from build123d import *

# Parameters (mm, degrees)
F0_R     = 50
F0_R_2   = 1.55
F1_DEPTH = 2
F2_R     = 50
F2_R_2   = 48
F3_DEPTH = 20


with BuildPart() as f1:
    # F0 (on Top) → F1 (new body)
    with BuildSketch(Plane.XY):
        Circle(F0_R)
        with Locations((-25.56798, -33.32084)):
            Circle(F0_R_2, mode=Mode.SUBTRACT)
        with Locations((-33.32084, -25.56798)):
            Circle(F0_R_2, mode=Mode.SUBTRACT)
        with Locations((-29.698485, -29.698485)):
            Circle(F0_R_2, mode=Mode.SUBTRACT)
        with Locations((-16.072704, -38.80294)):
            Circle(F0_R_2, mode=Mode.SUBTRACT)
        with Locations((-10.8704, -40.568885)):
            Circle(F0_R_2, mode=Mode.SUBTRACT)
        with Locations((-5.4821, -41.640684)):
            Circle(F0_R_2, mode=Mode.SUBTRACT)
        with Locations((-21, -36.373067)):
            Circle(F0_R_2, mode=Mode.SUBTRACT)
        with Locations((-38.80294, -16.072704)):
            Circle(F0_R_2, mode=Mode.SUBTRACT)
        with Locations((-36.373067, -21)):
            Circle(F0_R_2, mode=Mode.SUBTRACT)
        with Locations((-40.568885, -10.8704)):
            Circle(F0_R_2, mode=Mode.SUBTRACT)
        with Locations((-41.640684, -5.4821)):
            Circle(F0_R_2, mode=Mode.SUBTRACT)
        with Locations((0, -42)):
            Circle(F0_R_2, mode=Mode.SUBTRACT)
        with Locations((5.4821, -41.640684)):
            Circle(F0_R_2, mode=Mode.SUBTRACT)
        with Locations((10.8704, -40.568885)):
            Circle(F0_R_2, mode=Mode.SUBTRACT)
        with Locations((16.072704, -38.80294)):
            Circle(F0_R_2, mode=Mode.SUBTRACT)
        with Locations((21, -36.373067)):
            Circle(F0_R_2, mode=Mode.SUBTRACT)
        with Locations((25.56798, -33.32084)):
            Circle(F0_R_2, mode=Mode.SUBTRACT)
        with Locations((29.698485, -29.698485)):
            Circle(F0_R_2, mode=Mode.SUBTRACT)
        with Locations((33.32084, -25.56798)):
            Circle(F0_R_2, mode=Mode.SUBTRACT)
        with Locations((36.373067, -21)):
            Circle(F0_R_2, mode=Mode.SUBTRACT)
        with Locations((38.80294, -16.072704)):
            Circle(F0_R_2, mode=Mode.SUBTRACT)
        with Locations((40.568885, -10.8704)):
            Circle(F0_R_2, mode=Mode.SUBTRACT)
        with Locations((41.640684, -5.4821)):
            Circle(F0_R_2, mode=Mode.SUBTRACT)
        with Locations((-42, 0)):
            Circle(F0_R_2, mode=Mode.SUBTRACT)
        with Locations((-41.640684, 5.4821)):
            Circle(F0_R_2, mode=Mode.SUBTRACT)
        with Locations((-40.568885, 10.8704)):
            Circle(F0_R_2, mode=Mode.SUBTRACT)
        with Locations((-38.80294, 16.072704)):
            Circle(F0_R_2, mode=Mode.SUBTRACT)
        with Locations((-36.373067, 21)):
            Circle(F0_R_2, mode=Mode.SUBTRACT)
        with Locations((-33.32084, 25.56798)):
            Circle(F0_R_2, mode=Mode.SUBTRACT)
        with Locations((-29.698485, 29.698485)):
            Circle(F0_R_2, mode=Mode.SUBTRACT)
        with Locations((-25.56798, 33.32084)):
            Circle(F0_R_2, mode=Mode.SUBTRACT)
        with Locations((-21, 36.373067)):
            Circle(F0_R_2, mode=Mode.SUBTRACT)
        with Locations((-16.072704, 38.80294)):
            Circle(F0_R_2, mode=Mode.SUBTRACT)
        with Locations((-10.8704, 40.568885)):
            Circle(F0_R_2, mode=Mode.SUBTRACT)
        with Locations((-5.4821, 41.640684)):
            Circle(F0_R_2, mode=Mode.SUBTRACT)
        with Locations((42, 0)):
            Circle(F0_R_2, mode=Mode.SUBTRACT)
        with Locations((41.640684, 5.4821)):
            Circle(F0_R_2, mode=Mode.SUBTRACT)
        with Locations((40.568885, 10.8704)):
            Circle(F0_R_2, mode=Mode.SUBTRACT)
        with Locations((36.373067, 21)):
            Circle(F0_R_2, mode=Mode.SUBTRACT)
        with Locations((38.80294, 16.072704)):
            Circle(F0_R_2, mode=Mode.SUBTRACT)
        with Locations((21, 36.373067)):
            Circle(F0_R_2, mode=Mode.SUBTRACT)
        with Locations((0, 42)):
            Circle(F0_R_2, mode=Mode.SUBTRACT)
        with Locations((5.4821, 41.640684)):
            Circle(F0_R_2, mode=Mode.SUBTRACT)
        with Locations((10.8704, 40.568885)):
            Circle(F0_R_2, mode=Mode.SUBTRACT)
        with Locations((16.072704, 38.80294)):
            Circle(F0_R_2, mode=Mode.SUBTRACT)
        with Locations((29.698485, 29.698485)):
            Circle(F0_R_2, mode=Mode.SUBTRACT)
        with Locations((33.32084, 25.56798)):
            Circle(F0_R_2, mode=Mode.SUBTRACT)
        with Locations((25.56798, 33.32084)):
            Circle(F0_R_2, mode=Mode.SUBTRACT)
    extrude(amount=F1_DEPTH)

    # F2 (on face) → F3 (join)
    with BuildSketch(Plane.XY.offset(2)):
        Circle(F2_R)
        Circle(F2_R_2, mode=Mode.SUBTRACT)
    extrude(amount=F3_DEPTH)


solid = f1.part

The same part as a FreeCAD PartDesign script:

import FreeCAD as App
import Part
import Sketcher
from FreeCAD import Vector
Q = App.Units.Quantity

doc = App.newDocument("Part")
params = doc.addObject("Spreadsheet::Sheet", "Params")
for row, (alias, value) in enumerate([
    ("sketch1_diameter", "100 mm"),
    ("sketch1_diameter2", "3.1 mm"),
    ("pad1_length", "2 mm"),
    ("sketch2_diameter", "100 mm"),
    ("sketch2_diameter2", "96 mm"),
    ("pad2_length", "20 mm"),
], start=1):
    params.set(f"A{row}", alias)
    params.set(f"B{row}", "=" + value)
    params.setAlias(f"B{row}", alias)

body = doc.addObject("PartDesign::Body", "Body")

sketch1 = body.newObject("Sketcher::SketchObject", "Sketch")
sketch1.AttachmentSupport = (doc.getObject("XY_Plane"), [""])
sketch1.MapMode = "FlatFace"
sketch1.addGeometry([
    Part.Circle(Vector(0, 0, 0), Vector(0, 0, 1), 50),
    Part.Circle(Vector(-25.56798, -33.32084, 0), Vector(0, 0, 1), 1.55),
    Part.Circle(Vector(-33.32084, -25.56798, 0), Vector(0, 0, 1), 1.55),
    Part.Circle(Vector(-29.698485, -29.698485, 0), Vector(0, 0, 1), 1.55),
    Part.Circle(Vector(-16.072704, -38.80294, 0), Vector(0, 0, 1), 1.55),
    Part.Circle(Vector(-21, -36.373067, 0), Vector(0, 0, 1), 1.55),
    Part.Circle(Vector(-5.4821, -41.640684, 0), Vector(0, 0, 1), 1.55),
    Part.Circle(Vector(-10.8704, -40.568885, 0), Vector(0, 0, 1), 1.55),
    Part.Circle(Vector(-36.373067, -21, 0), Vector(0, 0, 1), 1.55),
    Part.Circle(Vector(-38.80294, -16.072704, 0), Vector(0, 0, 1), 1.55),
    Part.Circle(Vector(-40.568885, -10.8704, 0), Vector(0, 0, 1), 1.55),
    Part.Circle(Vector(-41.640684, -5.4821, 0), Vector(0, 0, 1), 1.55),
    Part.Circle(Vector(0, -42, 0), Vector(0, 0, 1), 1.55),
    Part.Circle(Vector(5.4821, -41.640684, 0), Vector(0, 0, 1), 1.55),
    Part.Circle(Vector(10.8704, -40.568885, 0), Vector(0, 0, 1), 1.55),
    Part.Circle(Vector(16.072704, -38.80294, 0), Vector(0, 0, 1), 1.55),
    Part.Circle(Vector(21, -36.373067, 0), Vector(0, 0, 1), 1.55),
    Part.Circle(Vector(25.56798, -33.32084, 0), Vector(0, 0, 1), 1.55),
    Part.Circle(Vector(29.698485, -29.698485, 0), Vector(0, 0, 1), 1.55),
    Part.Circle(Vector(33.32084, -25.56798, 0), Vector(0, 0, 1), 1.55),
    Part.Circle(Vector(36.373067, -21, 0), Vector(0, 0, 1), 1.55),
    Part.Circle(Vector(38.80294, -16.072704, 0), Vector(0, 0, 1), 1.55),
    Part.Circle(Vector(40.568885, -10.8704, 0), Vector(0, 0, 1), 1.55),
    Part.Circle(Vector(41.640684, -5.4821, 0), Vector(0, 0, 1), 1.55),
    Part.Circle(Vector(-42, 0, 0), Vector(0, 0, 1), 1.55),
    Part.Circle(Vector(-41.640684, 5.4821, 0), Vector(0, 0, 1), 1.55),
    Part.Circle(Vector(-40.568885, 10.8704, 0), Vector(0, 0, 1), 1.55),
    Part.Circle(Vector(-38.80294, 16.072704, 0), Vector(0, 0, 1), 1.55),
    Part.Circle(Vector(-36.373067, 21, 0), Vector(0, 0, 1), 1.55),
    Part.Circle(Vector(-33.32084, 25.56798, 0), Vector(0, 0, 1), 1.55),
    Part.Circle(Vector(-29.698485, 29.698485, 0), Vector(0, 0, 1), 1.55),
    Part.Circle(Vector(-25.56798, 33.32084, 0), Vector(0, 0, 1), 1.55),
    Part.Circle(Vector(-21, 36.373067, 0), Vector(0, 0, 1), 1.55),
    Part.Circle(Vector(-16.072704, 38.80294, 0), Vector(0, 0, 1), 1.55),
    Part.Circle(Vector(-10.8704, 40.568885, 0), Vector(0, 0, 1), 1.55),
    Part.Circle(Vector(-5.4821, 41.640684, 0), Vector(0, 0, 1), 1.55),
    Part.Circle(Vector(42, 0, 0), Vector(0, 0, 1), 1.55),
    Part.Circle(Vector(41.640684, 5.4821, 0), Vector(0, 0, 1), 1.55),
    Part.Circle(Vector(40.568885, 10.8704, 0), Vector(0, 0, 1), 1.55),
    Part.Circle(Vector(38.80294, 16.072704, 0), Vector(0, 0, 1), 1.55),
    Part.Circle(Vector(36.373067, 21, 0), Vector(0, 0, 1), 1.55),
    Part.Circle(Vector(0, 42, 0), Vector(0, 0, 1), 1.55),
    Part.Circle(Vector(10.8704, 40.568885, 0), Vector(0, 0, 1), 1.55),
    Part.Circle(Vector(5.4821, 41.640684, 0), Vector(0, 0, 1), 1.55),
    Part.Circle(Vector(21, 36.373067, 0), Vector(0, 0, 1), 1.55),
    Part.Circle(Vector(16.072704, 38.80294, 0), Vector(0, 0, 1), 1.55),
    Part.Circle(Vector(29.698485, 29.698485, 0), Vector(0, 0, 1), 1.55),
    Part.Circle(Vector(33.32084, 25.56798, 0), Vector(0, 0, 1), 1.55),
    Part.Circle(Vector(25.56798, 33.32084, 0), Vector(0, 0, 1), 1.55),
], False)
sketch1.addConstraint([
    Sketcher.Constraint("Coincident", 0, 3, -1, 1),
    Sketcher.Constraint("Equal", 1, 2),
    Sketcher.Constraint("Equal", 2, 3),
    Sketcher.Constraint("Equal", 3, 4),
    Sketcher.Constraint("Equal", 4, 5),
    Sketcher.Constraint("Equal", 5, 6),
    Sketcher.Constraint("Equal", 6, 7),
    Sketcher.Constraint("Equal", 7, 8),
    Sketcher.Constraint("Equal", 8, 9),
    Sketcher.Constraint("Equal", 9, 10),
    Sketcher.Constraint("Equal", 10, 11),
    Sketcher.Constraint("Equal", 11, 12),
    Sketcher.Constraint("Equal", 12, 13),
    Sketcher.Constraint("Equal", 13, 14),
    Sketcher.Constraint("Equal", 14, 15),
    Sketcher.Constraint("Equal", 15, 16),
    Sketcher.Constraint("Equal", 16, 17),
    Sketcher.Constraint("Equal", 17, 18),
    Sketcher.Constraint("Equal", 18, 19),
    Sketcher.Constraint("Equal", 19, 20),
    Sketcher.Constraint("Equal", 20, 21),
    Sketcher.Constraint("Equal", 21, 22),
    Sketcher.Constraint("Equal", 22, 23),
    Sketcher.Constraint("Equal", 23, 24),
    Sketcher.Constraint("Equal", 24, 25),
    Sketcher.Constraint("Equal", 25, 26),
    Sketcher.Constraint("Equal", 26, 27),
    Sketcher.Constraint("Equal", 27, 28),
    Sketcher.Constraint("Equal", 28, 29),
    Sketcher.Constraint("Equal", 29, 30),
    Sketcher.Constraint("Equal", 30, 31),
    Sketcher.Constraint("Equal", 31, 32),
    Sketcher.Constraint("Equal", 32, 33),
    Sketcher.Constraint("Equal", 33, 34),
    Sketcher.Constraint("Equal", 34, 35),
    Sketcher.Constraint("Equal", 35, 36),
    Sketcher.Constraint("Equal", 36, 37),
    Sketcher.Constraint("Equal", 37, 38),
    Sketcher.Constraint("Equal", 38, 39),
    Sketcher.Constraint("Equal", 39, 40),
    Sketcher.Constraint("Equal", 40, 41),
    Sketcher.Constraint("Equal", 41, 42),
    Sketcher.Constraint("Equal", 42, 43),
    Sketcher.Constraint("Equal", 43, 44),
    Sketcher.Constraint("Equal", 44, 45),
    Sketcher.Constraint("Equal", 45, 46),
    Sketcher.Constraint("Equal", 46, 47),
    Sketcher.Constraint("Equal", 47, 48),
    Sketcher.Constraint("Symmetric", 23, 3, 25, 3, -1, 1),
    Sketcher.Constraint("Symmetric", 22, 3, 26, 3, -1, 1),
    Sketcher.Constraint("Symmetric", 21, 3, 27, 3, -1, 1),
    Sketcher.Constraint("Symmetric", 20, 3, 28, 3, -1, 1),
    Sketcher.Constraint("Symmetric", 19, 3, 29, 3, -1, 1),
    Sketcher.Constraint("Symmetric", 18, 3, 30, 3, -1, 1),
    Sketcher.Constraint("Symmetric", 17, 3, 31, 3, -1, 1),
    Sketcher.Constraint("Symmetric", 16, 3, 32, 3, -1, 1),
    Sketcher.Constraint("Symmetric", 15, 3, 33, 3, -1, 1),
    Sketcher.Constraint("Symmetric", 14, 3, 34, 3, -1, 1),
    Sketcher.Constraint("Symmetric", 13, 3, 35, 3, -1, 1),
    Sketcher.Constraint("Symmetric", 24, 3, 36, 3, -1, 1),
    Sketcher.Constraint("Symmetric", 11, 3, 37, 3, -1, 1),
    Sketcher.Constraint("Symmetric", 10, 3, 38, 3, -1, 1),
    Sketcher.Constraint("Symmetric", 9, 3, 39, 3, -1, 1),
    Sketcher.Constraint("Symmetric", 8, 3, 40, 3, -1, 1),
    Sketcher.Constraint("Symmetric", 12, 3, 41, 3, -1, 1),
    Sketcher.Constraint("Symmetric", 7, 3, 42, 3, -1, 1),
    Sketcher.Constraint("Symmetric", 6, 3, 43, 3, -1, 1),
    Sketcher.Constraint("Symmetric", 5, 3, 44, 3, -1, 1),
    Sketcher.Constraint("Symmetric", 4, 3, 45, 3, -1, 1),
    Sketcher.Constraint("Symmetric", 3, 3, 46, 3, -1, 1),
    Sketcher.Constraint("Symmetric", 2, 3, 47, 3, -1, 1),
    Sketcher.Constraint("Symmetric", 1, 3, 48, 3, -1, 1),
    Sketcher.Constraint("Symmetric", 6, 3, 13, 3, -2),
    Sketcher.Constraint("Symmetric", 7, 3, 14, 3, -2),
    Sketcher.Constraint("Symmetric", 4, 3, 15, 3, -2),
    Sketcher.Constraint("Symmetric", 5, 3, 16, 3, -2),
    Sketcher.Constraint("Symmetric", 1, 3, 17, 3, -2),
    Sketcher.Constraint("Symmetric", 3, 3, 18, 3, -2),
    Sketcher.Constraint("Symmetric", 2, 3, 19, 3, -2),
    Sketcher.Constraint("Symmetric", 8, 3, 20, 3, -2),
    Sketcher.Constraint("Symmetric", 9, 3, 21, 3, -2),
    Sketcher.Constraint("Symmetric", 10, 3, 22, 3, -2),
    Sketcher.Constraint("Symmetric", 11, 3, 23, 3, -2),
    Sketcher.Constraint("PointOnObject", 12, 3, -2),
    Sketcher.Constraint("PointOnObject", 24, 3, -1),
    Sketcher.Constraint("Diameter", 0, Q("100 mm")),
    Sketcher.Constraint("Diameter", 1, Q("3.1 mm")),
    Sketcher.Constraint("DistanceX", 5, 3, -1, 1, Q("21 mm")),
    Sketcher.Constraint("DistanceY", 8, 3, -1, 1, Q("21 mm")),
    Sketcher.Constraint("DistanceY", 12, 3, -1, 1, Q("42 mm")),
    Sketcher.Constraint("DistanceX", 24, 3, -1, 1, Q("42 mm")),
    Sketcher.Constraint("DistanceX", 6, 3, -1, 1, Q("5.4821 mm")),
    Sketcher.Constraint("DistanceX", 7, 3, -1, 1, Q("10.8704 mm")),
    Sketcher.Constraint("DistanceY", 10, 3, -1, 1, Q("10.8704 mm")),
    Sketcher.Constraint("DistanceY", 11, 3, -1, 1, Q("5.4821 mm")),
    Sketcher.Constraint("DistanceY", 4, 3, 1, 3, Q("5.4821 mm")),
    Sketcher.Constraint("DistanceY", 6, 3, 3, 3, Q("11.942199 mm")),
    Sketcher.Constraint("DistanceY", 6, 3, 7, 3, Q("1.071799 mm")),
    Sketcher.Constraint("DistanceX", 9, 3, 2, 3, Q("5.4821 mm")),
    Sketcher.Constraint("DistanceX", 10, 3, 3, 3, Q("10.8704 mm")),
    Sketcher.Constraint("DistanceX", 11, 3, 10, 3, Q("1.071799 mm")),
    Sketcher.Constraint("DistanceX", 1, 3, -1, 1, Q("25.56798 mm")),
    Sketcher.Constraint("DistanceY", 1, 3, -1, 1, Q("33.32084 mm")),
    Sketcher.Constraint("DistanceX", 2, 3, -1, 1, Q("33.32084 mm")),
    Sketcher.Constraint("DistanceY", 2, 3, -1, 1, Q("25.56798 mm")),
    Sketcher.Constraint("DistanceX", 3, 3, 4, 3, Q("13.625781 mm")),
    Sketcher.Constraint("DistanceY", 5, 3, 3, 3, Q("6.674582 mm")),
    Sketcher.Constraint("DistanceX", 8, 3, 3, 3, Q("6.674582 mm")),
    Sketcher.Constraint("DistanceY", 3, 3, 9, 3, Q("13.625781 mm")),
    Sketcher.Constraint("DistanceX", 3, 3, -1, 1, Q("29.698485 mm")),
    Sketcher.Constraint("DistanceY", 3, 3, -1, 1, Q("29.698485 mm")),
])
sketch1.setExpression("Constraints[85]", "Params.sketch1_diameter")
sketch1.setExpression("Constraints[86]", "Params.sketch1_diameter2")
pad1 = body.newObject("PartDesign::Pad", "Pad")
pad1.Profile = sketch1
pad1.setExpression("Length", "Params.pad1_length")

sketch2 = body.newObject("Sketcher::SketchObject", "Sketch001")
sketch2.AttachmentSupport = (doc.getObject("XY_Plane"), [""])
sketch2.MapMode = "FlatFace"
sketch2.AttachmentOffset = App.Placement(Vector(0, 0, 2), App.Rotation())
sketch2.addGeometry([
    Part.Circle(Vector(0, 0, 0), Vector(0, 0, 1), 50),
    Part.Circle(Vector(0, 0, 0), Vector(0, 0, 1), 48),
], False)
sketch2.addConstraint([
    Sketcher.Constraint("Coincident", 0, 3, -1, 1),
    Sketcher.Constraint("Coincident", 1, 3, -1, 1),
    Sketcher.Constraint("Diameter", 0, Q("100 mm")),
    Sketcher.Constraint("Diameter", 1, Q("96 mm")),
])
sketch2.setExpression("Constraints[2]", "Params.sketch2_diameter")
sketch2.setExpression("Constraints[3]", "Params.sketch2_diameter2")
pad2 = body.newObject("PartDesign::Pad", "Pad001")
pad2.Profile = sketch2
pad2.setExpression("Length", "Params.pad2_length")

doc.recompute()
